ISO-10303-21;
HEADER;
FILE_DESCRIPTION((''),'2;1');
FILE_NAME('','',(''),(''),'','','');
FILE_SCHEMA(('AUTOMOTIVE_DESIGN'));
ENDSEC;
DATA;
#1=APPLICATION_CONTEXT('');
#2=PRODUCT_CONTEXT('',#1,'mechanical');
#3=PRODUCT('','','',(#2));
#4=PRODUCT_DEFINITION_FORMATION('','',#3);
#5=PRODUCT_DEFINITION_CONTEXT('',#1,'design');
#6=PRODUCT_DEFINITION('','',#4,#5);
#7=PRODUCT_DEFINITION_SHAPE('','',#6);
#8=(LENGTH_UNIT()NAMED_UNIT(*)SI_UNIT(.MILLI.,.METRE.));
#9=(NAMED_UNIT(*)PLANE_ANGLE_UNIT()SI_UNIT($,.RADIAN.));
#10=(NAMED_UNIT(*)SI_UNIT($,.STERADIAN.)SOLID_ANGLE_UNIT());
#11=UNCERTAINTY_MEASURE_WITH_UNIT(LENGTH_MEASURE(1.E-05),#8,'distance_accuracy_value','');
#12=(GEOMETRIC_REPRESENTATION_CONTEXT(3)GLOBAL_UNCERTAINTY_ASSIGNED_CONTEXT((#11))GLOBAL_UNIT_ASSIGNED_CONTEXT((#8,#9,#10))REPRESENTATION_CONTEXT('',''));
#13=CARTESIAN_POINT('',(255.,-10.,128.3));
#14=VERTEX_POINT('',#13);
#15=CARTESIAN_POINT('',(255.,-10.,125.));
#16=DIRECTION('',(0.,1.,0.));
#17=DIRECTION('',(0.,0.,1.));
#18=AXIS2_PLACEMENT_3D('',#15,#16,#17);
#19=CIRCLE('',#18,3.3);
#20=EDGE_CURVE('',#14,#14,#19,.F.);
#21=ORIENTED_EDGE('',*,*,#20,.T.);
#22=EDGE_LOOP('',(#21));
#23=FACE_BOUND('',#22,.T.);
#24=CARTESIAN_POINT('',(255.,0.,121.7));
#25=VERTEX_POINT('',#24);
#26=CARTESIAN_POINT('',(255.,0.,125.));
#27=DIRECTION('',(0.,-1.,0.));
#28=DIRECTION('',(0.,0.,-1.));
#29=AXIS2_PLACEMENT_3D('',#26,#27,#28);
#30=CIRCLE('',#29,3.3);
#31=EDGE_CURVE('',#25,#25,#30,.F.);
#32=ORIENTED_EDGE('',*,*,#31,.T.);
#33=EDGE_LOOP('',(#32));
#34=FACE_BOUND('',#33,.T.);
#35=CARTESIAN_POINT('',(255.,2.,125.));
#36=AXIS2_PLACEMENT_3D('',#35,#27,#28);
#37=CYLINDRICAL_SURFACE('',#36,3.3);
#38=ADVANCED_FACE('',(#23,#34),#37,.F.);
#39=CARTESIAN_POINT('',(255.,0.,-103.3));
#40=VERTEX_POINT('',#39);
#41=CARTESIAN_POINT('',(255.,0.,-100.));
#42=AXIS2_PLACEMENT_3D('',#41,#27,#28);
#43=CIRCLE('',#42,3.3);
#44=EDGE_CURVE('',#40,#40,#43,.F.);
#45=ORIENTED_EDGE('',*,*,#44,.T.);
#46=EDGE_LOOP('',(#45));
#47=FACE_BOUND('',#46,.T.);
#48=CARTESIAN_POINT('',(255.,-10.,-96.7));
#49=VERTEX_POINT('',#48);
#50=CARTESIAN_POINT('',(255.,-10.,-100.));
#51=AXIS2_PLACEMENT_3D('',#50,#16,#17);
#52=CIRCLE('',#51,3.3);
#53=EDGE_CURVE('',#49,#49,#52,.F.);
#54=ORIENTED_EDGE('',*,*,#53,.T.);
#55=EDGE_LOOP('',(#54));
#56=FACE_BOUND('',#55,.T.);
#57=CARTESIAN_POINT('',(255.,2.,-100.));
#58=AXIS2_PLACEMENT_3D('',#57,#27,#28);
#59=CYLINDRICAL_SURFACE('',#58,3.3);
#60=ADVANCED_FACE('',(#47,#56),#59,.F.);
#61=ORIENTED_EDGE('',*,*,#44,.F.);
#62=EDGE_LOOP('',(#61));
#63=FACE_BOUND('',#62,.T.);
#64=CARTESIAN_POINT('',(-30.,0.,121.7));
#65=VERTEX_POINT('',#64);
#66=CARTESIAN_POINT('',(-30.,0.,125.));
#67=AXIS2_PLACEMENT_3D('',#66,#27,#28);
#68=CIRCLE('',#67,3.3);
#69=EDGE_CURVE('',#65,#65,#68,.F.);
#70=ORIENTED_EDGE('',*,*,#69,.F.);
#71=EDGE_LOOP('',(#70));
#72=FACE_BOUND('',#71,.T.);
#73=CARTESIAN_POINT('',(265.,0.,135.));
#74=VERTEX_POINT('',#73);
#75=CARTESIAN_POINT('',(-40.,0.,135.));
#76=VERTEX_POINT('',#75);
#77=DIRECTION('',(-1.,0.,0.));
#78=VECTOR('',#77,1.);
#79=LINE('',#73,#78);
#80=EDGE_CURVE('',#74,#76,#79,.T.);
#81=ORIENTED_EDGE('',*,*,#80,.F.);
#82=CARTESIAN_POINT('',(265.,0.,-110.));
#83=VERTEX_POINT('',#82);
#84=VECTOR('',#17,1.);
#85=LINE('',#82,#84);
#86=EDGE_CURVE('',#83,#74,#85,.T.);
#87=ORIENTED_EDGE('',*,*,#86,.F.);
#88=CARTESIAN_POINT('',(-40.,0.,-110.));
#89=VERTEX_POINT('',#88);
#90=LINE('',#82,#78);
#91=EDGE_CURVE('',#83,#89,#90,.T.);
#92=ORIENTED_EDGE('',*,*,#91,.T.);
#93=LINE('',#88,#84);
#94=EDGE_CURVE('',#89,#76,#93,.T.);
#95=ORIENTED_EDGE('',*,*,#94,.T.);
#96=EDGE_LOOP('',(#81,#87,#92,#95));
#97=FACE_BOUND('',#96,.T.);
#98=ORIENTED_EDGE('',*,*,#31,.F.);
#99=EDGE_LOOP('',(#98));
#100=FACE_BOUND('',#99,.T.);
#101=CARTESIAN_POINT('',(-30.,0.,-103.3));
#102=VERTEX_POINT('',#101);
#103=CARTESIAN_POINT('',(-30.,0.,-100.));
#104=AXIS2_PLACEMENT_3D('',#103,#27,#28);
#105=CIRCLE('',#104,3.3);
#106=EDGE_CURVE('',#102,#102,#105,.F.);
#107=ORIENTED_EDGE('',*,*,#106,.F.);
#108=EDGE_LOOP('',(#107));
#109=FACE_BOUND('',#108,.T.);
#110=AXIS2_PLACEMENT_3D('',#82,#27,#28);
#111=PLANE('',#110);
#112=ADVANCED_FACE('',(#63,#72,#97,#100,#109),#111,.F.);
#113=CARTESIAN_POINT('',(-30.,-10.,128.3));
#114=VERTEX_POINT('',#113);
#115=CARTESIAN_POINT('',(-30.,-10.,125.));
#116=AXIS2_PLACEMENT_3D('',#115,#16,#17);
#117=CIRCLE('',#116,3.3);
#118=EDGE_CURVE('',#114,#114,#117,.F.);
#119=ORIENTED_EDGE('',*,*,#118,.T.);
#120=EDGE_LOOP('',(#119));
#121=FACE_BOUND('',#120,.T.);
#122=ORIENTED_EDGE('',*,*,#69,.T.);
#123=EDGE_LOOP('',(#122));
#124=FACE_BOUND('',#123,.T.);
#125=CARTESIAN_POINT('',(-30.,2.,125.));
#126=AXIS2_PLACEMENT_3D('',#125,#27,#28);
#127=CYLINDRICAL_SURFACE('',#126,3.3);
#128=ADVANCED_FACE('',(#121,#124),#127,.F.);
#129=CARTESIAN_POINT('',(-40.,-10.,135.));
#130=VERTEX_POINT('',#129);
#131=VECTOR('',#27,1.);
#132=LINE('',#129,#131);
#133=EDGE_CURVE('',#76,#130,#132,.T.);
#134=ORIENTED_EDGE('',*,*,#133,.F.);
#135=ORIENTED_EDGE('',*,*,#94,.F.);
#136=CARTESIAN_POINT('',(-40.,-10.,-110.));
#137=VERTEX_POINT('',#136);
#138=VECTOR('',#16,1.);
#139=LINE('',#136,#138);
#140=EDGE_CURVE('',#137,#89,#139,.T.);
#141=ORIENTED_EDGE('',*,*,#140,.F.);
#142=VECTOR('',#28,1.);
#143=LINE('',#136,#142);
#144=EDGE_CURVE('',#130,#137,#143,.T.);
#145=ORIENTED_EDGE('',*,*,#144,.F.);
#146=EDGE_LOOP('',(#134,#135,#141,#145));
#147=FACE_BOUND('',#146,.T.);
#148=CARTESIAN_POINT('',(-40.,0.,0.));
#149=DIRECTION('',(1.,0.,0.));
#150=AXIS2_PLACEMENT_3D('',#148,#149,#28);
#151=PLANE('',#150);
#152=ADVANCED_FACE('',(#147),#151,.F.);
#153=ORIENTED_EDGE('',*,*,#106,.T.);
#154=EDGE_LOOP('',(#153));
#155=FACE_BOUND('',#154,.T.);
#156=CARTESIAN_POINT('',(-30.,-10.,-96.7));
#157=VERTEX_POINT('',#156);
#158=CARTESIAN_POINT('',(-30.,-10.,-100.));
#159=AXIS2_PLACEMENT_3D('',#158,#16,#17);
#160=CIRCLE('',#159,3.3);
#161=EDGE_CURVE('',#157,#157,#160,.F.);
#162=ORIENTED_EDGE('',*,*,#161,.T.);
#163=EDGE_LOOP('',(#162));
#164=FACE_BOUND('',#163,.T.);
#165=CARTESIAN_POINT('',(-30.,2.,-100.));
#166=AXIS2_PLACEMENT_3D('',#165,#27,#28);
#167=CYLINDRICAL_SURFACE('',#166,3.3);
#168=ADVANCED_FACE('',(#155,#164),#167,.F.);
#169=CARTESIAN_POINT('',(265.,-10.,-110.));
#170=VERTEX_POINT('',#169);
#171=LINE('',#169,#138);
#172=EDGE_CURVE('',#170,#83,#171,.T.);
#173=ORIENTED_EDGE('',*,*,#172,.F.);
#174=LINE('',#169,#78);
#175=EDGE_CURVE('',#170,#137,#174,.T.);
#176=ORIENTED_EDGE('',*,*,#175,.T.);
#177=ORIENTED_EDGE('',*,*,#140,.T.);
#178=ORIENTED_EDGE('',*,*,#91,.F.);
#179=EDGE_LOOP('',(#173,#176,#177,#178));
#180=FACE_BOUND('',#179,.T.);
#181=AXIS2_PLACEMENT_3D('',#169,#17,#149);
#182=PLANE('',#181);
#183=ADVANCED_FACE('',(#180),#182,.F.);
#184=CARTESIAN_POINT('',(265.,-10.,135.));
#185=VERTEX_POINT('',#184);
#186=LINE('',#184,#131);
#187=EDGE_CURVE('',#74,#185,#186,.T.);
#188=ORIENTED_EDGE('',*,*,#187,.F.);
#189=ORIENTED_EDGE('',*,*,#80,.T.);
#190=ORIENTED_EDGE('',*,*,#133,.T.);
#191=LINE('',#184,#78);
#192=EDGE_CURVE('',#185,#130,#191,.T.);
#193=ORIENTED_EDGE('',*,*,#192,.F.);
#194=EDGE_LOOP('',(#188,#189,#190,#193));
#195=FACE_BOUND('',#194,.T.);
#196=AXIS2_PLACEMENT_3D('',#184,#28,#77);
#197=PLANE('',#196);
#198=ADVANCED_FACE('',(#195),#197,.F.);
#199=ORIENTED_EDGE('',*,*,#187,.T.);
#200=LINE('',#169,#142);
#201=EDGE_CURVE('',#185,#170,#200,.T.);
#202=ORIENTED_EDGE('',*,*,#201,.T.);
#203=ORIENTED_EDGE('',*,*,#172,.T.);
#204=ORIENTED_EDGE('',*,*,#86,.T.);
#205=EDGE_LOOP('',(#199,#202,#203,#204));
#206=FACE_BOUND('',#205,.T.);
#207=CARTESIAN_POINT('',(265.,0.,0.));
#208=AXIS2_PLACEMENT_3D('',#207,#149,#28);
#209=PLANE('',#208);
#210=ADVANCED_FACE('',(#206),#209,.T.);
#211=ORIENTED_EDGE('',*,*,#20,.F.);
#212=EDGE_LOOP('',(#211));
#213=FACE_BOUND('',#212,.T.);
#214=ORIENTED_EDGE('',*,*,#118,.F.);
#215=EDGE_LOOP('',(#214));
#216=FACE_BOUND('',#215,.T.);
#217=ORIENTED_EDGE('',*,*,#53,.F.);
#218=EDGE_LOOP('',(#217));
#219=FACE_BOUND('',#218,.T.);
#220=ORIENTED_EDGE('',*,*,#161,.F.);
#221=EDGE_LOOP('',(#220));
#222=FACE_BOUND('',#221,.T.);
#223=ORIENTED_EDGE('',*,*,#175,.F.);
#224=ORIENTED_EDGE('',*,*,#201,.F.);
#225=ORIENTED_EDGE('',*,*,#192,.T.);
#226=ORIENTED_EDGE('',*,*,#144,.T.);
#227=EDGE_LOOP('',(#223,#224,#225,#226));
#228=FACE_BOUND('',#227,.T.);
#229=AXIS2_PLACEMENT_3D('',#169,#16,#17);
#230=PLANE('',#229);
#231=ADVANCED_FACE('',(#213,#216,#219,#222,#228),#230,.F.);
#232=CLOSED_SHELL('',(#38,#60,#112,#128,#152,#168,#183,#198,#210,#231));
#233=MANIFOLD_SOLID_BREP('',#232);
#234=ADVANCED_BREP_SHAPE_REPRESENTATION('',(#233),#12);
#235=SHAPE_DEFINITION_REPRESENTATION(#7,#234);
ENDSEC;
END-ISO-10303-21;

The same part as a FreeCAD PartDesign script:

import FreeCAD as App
import Part
import Sketcher

V = App.Vector
Q = App.Units.Quantity


def add_polygon(sketch, points):
    """Adds a closed chain of lines whose ends are joined by coincident constraints."""
    first, n = sketch.GeometryCount, len(points)
    for a, b in zip(points, points[1:] + points[:1]):
        sketch.addGeometry(Part.LineSegment(App.Vector(*a, 0), App.Vector(*b, 0)), False)
    for i in range(n):
        sketch.addConstraint(Sketcher.Constraint("Coincident", first + i, 2, first + (i + 1) % n, 1))

doc = App.newDocument("Part")
body = doc.addObject("PartDesign::Body", "Body")

# Sketch on YZ plane
sketch1 = body.newObject("Sketcher::SketchObject", "Sketch")
sketch1.AttachmentSupport = (doc.getObject("YZ_Plane"), [""])
sketch1.MapMode = "FlatFace"
sketch1.AttachmentOffset = App.Placement(V(0, 0, -40), App.Rotation())
add_polygon(sketch1, [(0, 135), (-10, 135), (-10, -110), (0, -110)])  # lines 0-3
sketch1.addConstraint(Sketcher.Constraint("Horizontal", 0))
sketch1.addConstraint(Sketcher.Constraint("Vertical", 1))
sketch1.addConstraint(Sketcher.Constraint("Horizontal", 2))
sketch1.addConstraint(Sketcher.Constraint("Vertical", 3))
sketch1.addConstraint(Sketcher.Constraint("PointOnObject", 2, 2, -2))
sketch1.addConstraint(Sketcher.Constraint("DistanceX", 0, 2, 0, 1, Q("10 mm")))
sketch1.addConstraint(Sketcher.Constraint("DistanceY", 1, 2, 1, 1, Q("245 mm")))
sketch1.addConstraint(Sketcher.Constraint("DistanceY", -1, 1, 0, 2, Q("135 mm")))
pad1 = body.newObject("PartDesign::Pad", "Pad")
pad1.Profile = sketch1
pad1.Length = 305
body2 = doc.addObject("PartDesign::Body", "Body001")

# Sketch on XZ plane
sketch2 = body2.newObject("Sketcher::SketchObject", "Sketch001")
sketch2.AttachmentSupport = (doc.getObject("XZ_Plane001"), [""])
sketch2.MapMode = "FlatFace"
sketch2.AttachmentOffset = App.Placement(V(0, 0, 12), App.Rotation())
sketch2.addGeometry(Part.Circle(V(-30, -100, 0), V(0, 0, 1), 3.3), False)
sketch2.addConstraint(Sketcher.Constraint("Diameter", 0, Q("6.6 mm")))
sketch2.addConstraint(Sketcher.Constraint("DistanceX", 0, 3, -1, 1, Q("30 mm")))
sketch2.addConstraint(Sketcher.Constraint("DistanceY", 0, 3, -1, 1, Q("100 mm")))
pad2 = body2.newObject("PartDesign::Pad", "Pad001")
pad2.Profile = sketch2
pad2.Length = 14
pad2.Reversed = True
doc.recompute()

boolean = body.newObject("PartDesign::Boolean", "Boolean")
boolean.Type = "Cut"
boolean.addObjects([body2])
body3 = doc.addObject("PartDesign::Body", "Body002")

# Sketch on XZ plane
sketch3 = body3.newObject("Sketcher::SketchObject", "Sketch002")
sketch3.AttachmentSupport = (doc.getObject("XZ_Plane002"), [""])
sketch3.MapMode = "FlatFace"
sketch3.AttachmentOffset = App.Placement(V(0, 0, 12), App.Rotation())
sketch3.addGeometry(Part.Circle(V(-30, 125, 0), V(0, 0, 1), 3.3), False)
sketch3.addConstraint(Sketcher.Constraint("Diameter", 0, Q("6.6 mm")))
sketch3.addConstraint(Sketcher.Constraint("DistanceX", 0, 3, -1, 1, Q("30 mm")))
sketch3.addConstraint(Sketcher.Constraint("DistanceY", -1, 1, 0, 3, Q("125 mm")))
pad3 = body3.newObject("PartDesign::Pad", "Pad002")
pad3.Profile = sketch3
pad3.Length = 14
pad3.Reversed = True
doc.recompute()

boolean2 = body.newObject("PartDesign::Boolean", "Boolean001")
boolean2.Type = "Cut"
boolean2.addObjects([body3])
body4 = doc.addObject("PartDesign::Body", "Body003")

# Sketch on XZ plane
sketch4 = body4.newObject("Sketcher::SketchObject", "Sketch003")
sketch4.AttachmentSupport = (doc.getObject("XZ_Plane003"), [""])
sketch4.MapMode = "FlatFace"
sketch4.AttachmentOffset = App.Placement(V(0, 0, 12), App.Rotation())
sketch4.addGeometry(Part.Circle(V(255, -100, 0), V(0, 0, 1), 3.3), False)
sketch4.addConstraint(Sketcher.Constraint("Diameter", 0, Q("6.6 mm")))
sketch4.addConstraint(Sketcher.Constraint("DistanceX", -1, 1, 0, 3, Q("255 mm")))
sketch4.addConstraint(Sketcher.Constraint("DistanceY", 0, 3, -1, 1, Q("100 mm")))
pad4 = body4.newObject("PartDesign::Pad", "Pad003")
pad4.Profile = sketch4
pad4.Length = 14
pad4.Reversed = True
doc.recompute()

boolean3 = body.newObject("PartDesign::Boolean", "Boolean002")
boolean3.Type = "Cut"
boolean3.addObjects([body4])
body5 = doc.addObject("PartDesign::Body", "Body004")

# Sketch on XZ plane
sketch5 = body5.newObject("Sketcher::SketchObject", "Sketch004")
sketch5.AttachmentSupport = (doc.getObject("XZ_Plane004"), [""])
sketch5.MapMode = "FlatFace"
sketch5.AttachmentOffset = App.Placement(V(0, 0, 12), App.Rotation())
sketch5.addGeometry(Part.Circle(V(255, 125, 0), V(0, 0, 1), 3.3), False)
sketch5.addConstraint(Sketcher.Constraint("Diameter", 0, Q("6.6 mm")))
sketch5.addConstraint(Sketcher.Constraint("DistanceX", -1, 1, 0, 3, Q("255 mm")))
sketch5.addConstraint(Sketcher.Constraint("DistanceY", -1, 1, 0, 3, Q("125 mm")))
pad5 = body5.newObject("PartDesign::Pad", "Pad004")
pad5.Profile = sketch5
pad5.Length = 14
pad5.Reversed = True
doc.recompute()

boolean4 = body.newObject("PartDesign::Boolean", "Boolean003")
boolean4.Type = "Cut"
boolean4.addObjects([body5])

doc.recompute()
